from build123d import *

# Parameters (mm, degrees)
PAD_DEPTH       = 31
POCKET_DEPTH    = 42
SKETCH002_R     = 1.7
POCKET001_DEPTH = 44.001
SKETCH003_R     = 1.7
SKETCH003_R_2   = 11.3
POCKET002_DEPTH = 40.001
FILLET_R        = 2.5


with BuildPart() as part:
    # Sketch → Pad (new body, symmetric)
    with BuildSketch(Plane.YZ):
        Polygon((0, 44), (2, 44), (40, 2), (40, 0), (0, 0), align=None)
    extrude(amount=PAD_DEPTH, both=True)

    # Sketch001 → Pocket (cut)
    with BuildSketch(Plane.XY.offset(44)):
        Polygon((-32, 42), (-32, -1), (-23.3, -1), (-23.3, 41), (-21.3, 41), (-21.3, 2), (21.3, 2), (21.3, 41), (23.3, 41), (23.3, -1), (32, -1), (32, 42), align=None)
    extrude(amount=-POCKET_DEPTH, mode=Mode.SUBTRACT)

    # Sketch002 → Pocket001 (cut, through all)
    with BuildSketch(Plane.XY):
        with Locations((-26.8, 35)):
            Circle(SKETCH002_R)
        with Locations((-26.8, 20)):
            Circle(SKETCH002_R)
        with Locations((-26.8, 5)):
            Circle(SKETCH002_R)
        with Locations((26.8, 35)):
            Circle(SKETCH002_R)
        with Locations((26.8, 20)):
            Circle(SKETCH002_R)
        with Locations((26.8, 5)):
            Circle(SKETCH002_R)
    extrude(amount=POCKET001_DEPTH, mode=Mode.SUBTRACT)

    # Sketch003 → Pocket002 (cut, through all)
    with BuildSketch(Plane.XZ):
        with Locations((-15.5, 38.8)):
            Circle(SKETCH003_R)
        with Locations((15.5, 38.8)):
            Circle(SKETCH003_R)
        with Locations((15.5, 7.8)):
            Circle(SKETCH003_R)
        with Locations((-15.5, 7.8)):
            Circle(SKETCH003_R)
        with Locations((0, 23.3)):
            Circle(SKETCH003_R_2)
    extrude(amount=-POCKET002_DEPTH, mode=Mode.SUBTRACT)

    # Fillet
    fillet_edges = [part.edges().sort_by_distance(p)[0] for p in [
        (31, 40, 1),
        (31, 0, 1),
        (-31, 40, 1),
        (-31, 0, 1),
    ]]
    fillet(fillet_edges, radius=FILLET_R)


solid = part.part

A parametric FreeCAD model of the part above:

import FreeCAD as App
import Part
import Sketcher


def edges_at(feature, points):
    """Names of the edges that pass closest to the given points."""
    edges = feature.Shape.Edges
    near = lambda p: min(range(len(edges)), key=lambda i: edges[i].distToShape(Part.Vertex(*p))[0])
    return sorted({f"Edge{near(p) + 1}" for p in points})


def add_polygon(sketch, points):
    """Adds a closed chain of lines whose ends are joined by coincident constraints."""
    first, n = sketch.GeometryCount, len(points)
    for a, b in zip(points, points[1:] + points[:1]):
        sketch.addGeometry(Part.LineSegment(App.Vector(*a, 0), App.Vector(*b, 0)), False)
    for i in range(n):
        sketch.addConstraint(Sketcher.Constraint("Coincident", first + i, 2, first + (i + 1) % n, 1))

doc = App.newDocument("Part")
body = doc.addObject("PartDesign::Body", "Body")

# Sketch on YZ plane
sketch1 = body.newObject("Sketcher::SketchObject", "Sketch")
sketch1.AttachmentSupport = (doc.getObject("YZ_Plane"), [""])
sketch1.MapMode = "FlatFace"
add_polygon(sketch1, [(2, 44), (0, 44), (0, 0), (40, 0), (40, 2)])  # lines 0-4
sketch1.addConstraint([
    Sketcher.Constraint("Horizontal", 0),
    Sketcher.Constraint("Vertical", 1),
    Sketcher.Constraint("Horizontal", 2),
    Sketcher.Constraint("Vertical", 3),
    Sketcher.Constraint("Coincident", 1, 2, -1, 1),
    Sketcher.Constraint("Equal", 0, 3),
    Sketcher.Constraint("DistanceX", 0, 2, 0, 1, 2.0),
    Sketcher.Constraint("DistanceX", 2, 1, 2, 2, 40.0),
    Sketcher.Constraint("DistanceY", 1, 2, 1, 1, 44.0),
])
pad1 = body.newObject("PartDesign::Pad", "Pad")
pad1.Profile = sketch1
pad1.Length = 62
pad1.Midplane = True

# Sketch on XY plane
sketch2 = body.newObject("Sketcher::SketchObject", "Sketch001")
sketch2.AttachmentSupport = (doc.getObject("XY_Plane"), [""])
sketch2.MapMode = "FlatFace"
sketch2.AttachmentOffset = App.Placement(App.Vector(0, 0, 44), App.Rotation())
add_polygon(sketch2, [(-32, 42), (-32, -1), (-23.3, -1), (-23.3, 41), (-21.3, 41), (-21.3, 2), (21.3, 2), (21.3, 41), (23.3, 41), (23.3, -1), (32, -1), (32, 42)])  # lines 0-11
sketch2.addConstraint([
    Sketcher.Constraint("Vertical", 0),
    Sketcher.Constraint("Horizontal", 1),
    Sketcher.Constraint("Vertical", 2),
    Sketcher.Constraint("Horizontal", 3),
    Sketcher.Constraint("Vertical", 4),
    Sketcher.Constraint("Horizontal", 5),
    Sketcher.Constraint("Vertical", 6),
    Sketcher.Constraint("Horizontal", 7),
    Sketcher.Constraint("Vertical", 8),
    Sketcher.Constraint("Horizontal", 9),
    Sketcher.Constraint("Vertical", 10),
    Sketcher.Constraint("Horizontal", 11),
    Sketcher.Constraint("Symmetric", 3, 2, 6, 2, -2),
    Sketcher.Constraint("Symmetric", 1, 2, 8, 2, -2),
    Sketcher.Constraint("Equal", 1, 9),
    Sketcher.Constraint("DistanceX", 3, 1, 3, 2, 2.0),
    Sketcher.Constraint("DistanceX", 11, 2, 11, 1, 64.0),
    Sketcher.Constraint("DistanceY", 0, 2, 0, 1, 43.0),
    Sketcher.Constraint("DistanceY", 2, 1, 2, 2, 42.0),
    Sketcher.Constraint("DistanceY", 4, 2, 4, 1, 39.0),
    Sketcher.Constraint("DistanceX", 1, 1, 1, 2, 8.7),
    Sketcher.Constraint("DistanceY", 0, 2, -1, 1, 1.0),
])
pocket1 = body.newObject("PartDesign::Pocket", "Pocket")
pocket1.Profile = sketch2
pocket1.Length = 42

# Sketch on XY plane
sketch3 = body.newObject("Sketcher::SketchObject", "Sketch002")
sketch3.AttachmentSupport = (doc.getObject("XY_Plane"), [""])
sketch3.MapMode = "FlatFace"
sketch3.addGeometry([
    Part.Circle(App.Vector(-26.8, 35, 0), App.Vector(0, 0, 1), 1.7),  # 0
    Part.Circle(App.Vector(-26.8, 20, 0), App.Vector(0, 0, 1), 1.7),  # 1
    Part.Circle(App.Vector(-26.8, 5, 0), App.Vector(0, 0, 1), 1.7),  # 2
    Part.Circle(App.Vector(26.8, 35, 0), App.Vector(0, 0, 1), 1.7),  # 3
    Part.Circle(App.Vector(26.8, 20, 0), App.Vector(0, 0, 1), 1.7),  # 4
    Part.Circle(App.Vector(26.8, 5, 0), App.Vector(0, 0, 1), 1.7),  # 5
], False)
sketch3.addConstraint([
    Sketcher.Constraint("Equal", 0, 1),
    Sketcher.Constraint("Equal", 1, 2),
    Sketcher.Constraint("Equal", 2, 3),
    Sketcher.Constraint("Equal", 3, 4),
    Sketcher.Constraint("Equal", 4, 5),
    Sketcher.Constraint("Symmetric", 0, 3, 3, 3, -2),
    Sketcher.Constraint("Symmetric", 1, 3, 4, 3, -2),
    Sketcher.Constraint("Symmetric", 2, 3, 5, 3, -2),
    Sketcher.Constraint("Vertical", 0, 3, 1, 3),
    Sketcher.Constraint("Vertical", 1, 3, 2, 3),
    Sketcher.Constraint("Diameter", 0, 3.4),
    Sketcher.Constraint("DistanceY", -1, 1, 0, 3, 35.0),
    Sketcher.Constraint("DistanceY", -1, 1, 1, 3, 20.0),
    Sketcher.Constraint("DistanceY", -1, 1, 2, 3, 5.0),
    Sketcher.Constraint("DistanceX", 0, 3, -1, 1, 26.8),
])
pocket2 = body.newObject("PartDesign::Pocket", "Pocket001")
pocket2.Profile = sketch3
pocket2.Type = "ThroughAll"
pocket2.Reversed = True

# Sketch on XZ plane
sketch4 = body.newObject("Sketcher::SketchObject", "Sketch003")
sketch4.AttachmentSupport = (doc.getObject("XZ_Plane"), [""])
sketch4.MapMode = "FlatFace"
sketch4.addGeometry([
    Part.Circle(App.Vector(-15.5, 38.8, 0), App.Vector(0, 0, 1), 1.7),  # 0
    Part.Circle(App.Vector(15.5, 38.8, 0), App.Vector(0, 0, 1), 1.7),  # 1
    Part.Circle(App.Vector(15.5, 7.8, 0), App.Vector(0, 0, 1), 1.7),  # 2
    Part.Circle(App.Vector(-15.5, 7.8, 0), App.Vector(0, 0, 1), 1.7),  # 3
    Part.Circle(App.Vector(0, 23.3, 0), App.Vector(0, 0, 1), 11.3),  # 4
], False)
sketch4.addConstraint([
    Sketcher.Constraint("Equal", 0, 1),
    Sketcher.Constraint("Equal", 1, 2),
    Sketcher.Constraint("Equal", 2, 3),
    Sketcher.Constraint("Symmetric", 0, 3, 1, 3, -2),
    Sketcher.Constraint("Symmetric", 2, 3, 3, 3, -2),
    Sketcher.Constraint("PointOnObject", 4, 3, -2),
    Sketcher.Constraint("Vertical", 1, 3, 2, 3),
    Sketcher.Constraint("Diameter", 0, 3.4),
    Sketcher.Constraint("Diameter", 4, 22.6),
    Sketcher.Constraint("DistanceX", 0, 3, 1, 3, 31.0),
    Sketcher.Constraint("DistanceY", 2, 3, 1, 3, 31.0),
    Sketcher.Constraint("DistanceY", -1, 1, 0, 3, 38.8),
    Sketcher.Constraint("DistanceY", -1, 1, 4, 3, 23.3),
])
pocket3 = body.newObject("PartDesign::Pocket", "Pocket002")
pocket3.Profile = sketch4
pocket3.Type = "ThroughAll"
doc.recompute()

fillet = body.newObject("PartDesign::Fillet", "Fillet")
fillet.Base = (pocket3, edges_at(pocket3, [
    (31, 40, 1),
    (31, 0, 1),
    (-31, 40, 1),
    (-31, 0, 1),
]))
fillet.Radius = 2.5

doc.recompute()
